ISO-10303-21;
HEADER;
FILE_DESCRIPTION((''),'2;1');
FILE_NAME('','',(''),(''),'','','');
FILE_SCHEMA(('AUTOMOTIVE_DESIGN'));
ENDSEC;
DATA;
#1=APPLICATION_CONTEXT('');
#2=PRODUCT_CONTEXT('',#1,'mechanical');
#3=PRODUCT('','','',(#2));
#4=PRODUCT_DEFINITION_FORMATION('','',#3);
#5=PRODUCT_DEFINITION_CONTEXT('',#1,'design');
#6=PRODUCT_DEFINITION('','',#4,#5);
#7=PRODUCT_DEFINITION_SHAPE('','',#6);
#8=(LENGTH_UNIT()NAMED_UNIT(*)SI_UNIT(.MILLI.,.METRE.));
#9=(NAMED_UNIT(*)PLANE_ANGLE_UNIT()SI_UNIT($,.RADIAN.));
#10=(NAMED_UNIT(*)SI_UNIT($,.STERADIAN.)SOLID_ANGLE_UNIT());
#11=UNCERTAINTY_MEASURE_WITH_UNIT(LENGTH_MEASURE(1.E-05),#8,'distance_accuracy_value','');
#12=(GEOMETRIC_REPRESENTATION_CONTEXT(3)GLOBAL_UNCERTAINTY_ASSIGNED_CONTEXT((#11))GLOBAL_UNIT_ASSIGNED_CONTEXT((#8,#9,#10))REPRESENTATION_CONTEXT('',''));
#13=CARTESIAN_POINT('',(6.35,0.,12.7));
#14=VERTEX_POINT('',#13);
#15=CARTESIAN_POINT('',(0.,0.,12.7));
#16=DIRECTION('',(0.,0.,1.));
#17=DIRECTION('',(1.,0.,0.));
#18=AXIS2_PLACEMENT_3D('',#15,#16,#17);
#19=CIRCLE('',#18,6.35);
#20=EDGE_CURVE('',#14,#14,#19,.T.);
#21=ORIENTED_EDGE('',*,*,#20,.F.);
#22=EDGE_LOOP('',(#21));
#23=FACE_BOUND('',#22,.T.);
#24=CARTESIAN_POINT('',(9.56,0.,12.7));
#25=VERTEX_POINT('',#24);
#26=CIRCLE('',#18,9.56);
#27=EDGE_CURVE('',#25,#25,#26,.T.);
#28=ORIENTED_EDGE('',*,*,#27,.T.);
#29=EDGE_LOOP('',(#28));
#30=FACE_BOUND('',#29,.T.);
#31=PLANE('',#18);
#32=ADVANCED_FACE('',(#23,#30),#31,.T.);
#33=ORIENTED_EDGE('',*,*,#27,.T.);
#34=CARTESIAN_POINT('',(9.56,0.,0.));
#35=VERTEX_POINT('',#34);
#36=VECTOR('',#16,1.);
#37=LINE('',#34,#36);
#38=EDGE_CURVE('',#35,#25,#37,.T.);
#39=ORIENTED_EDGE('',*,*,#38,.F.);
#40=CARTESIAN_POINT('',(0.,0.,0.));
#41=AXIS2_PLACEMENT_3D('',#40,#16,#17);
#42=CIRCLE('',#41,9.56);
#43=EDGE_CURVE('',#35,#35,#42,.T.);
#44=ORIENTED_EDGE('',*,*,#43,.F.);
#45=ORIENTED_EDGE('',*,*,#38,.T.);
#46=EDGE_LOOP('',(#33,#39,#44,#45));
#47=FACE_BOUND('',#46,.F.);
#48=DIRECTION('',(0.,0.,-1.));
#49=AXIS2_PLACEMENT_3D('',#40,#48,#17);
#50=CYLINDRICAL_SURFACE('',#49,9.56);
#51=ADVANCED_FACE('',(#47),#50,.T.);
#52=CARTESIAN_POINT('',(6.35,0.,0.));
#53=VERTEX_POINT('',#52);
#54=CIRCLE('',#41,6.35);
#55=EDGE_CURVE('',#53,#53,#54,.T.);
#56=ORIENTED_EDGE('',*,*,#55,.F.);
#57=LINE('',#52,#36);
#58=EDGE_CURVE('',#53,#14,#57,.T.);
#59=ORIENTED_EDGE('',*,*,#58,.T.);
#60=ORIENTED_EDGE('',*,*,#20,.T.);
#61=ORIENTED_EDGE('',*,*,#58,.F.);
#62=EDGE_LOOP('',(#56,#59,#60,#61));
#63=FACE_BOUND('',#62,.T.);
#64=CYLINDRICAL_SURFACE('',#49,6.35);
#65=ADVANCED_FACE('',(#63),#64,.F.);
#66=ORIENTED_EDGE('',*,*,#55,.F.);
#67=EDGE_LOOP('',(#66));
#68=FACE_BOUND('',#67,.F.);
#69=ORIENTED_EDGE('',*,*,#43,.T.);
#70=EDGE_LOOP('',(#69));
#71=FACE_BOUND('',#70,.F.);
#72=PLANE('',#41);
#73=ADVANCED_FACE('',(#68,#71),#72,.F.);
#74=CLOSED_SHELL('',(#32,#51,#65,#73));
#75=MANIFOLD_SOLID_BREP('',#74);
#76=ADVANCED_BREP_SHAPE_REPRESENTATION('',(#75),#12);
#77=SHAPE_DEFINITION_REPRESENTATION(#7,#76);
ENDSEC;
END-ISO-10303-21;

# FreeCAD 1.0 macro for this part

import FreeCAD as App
import Part
import Sketcher
from FreeCAD import Vector
Q = App.Units.Quantity

doc = App.newDocument("Part")
body = doc.addObject("PartDesign::Body", "Body")

# Sketch on XY plane
sketch1 = body.newObject("Sketcher::SketchObject", "Sketch")
sketch1.AttachmentSupport = (doc.getObject("XY_Plane"), [""])
sketch1.MapMode = "FlatFace"
sketch1.addGeometry(Part.Circle(Vector(0, 0, 0), Vector(0, 0, 1), 10), False)
sketch1.addGeometry(Part.Circle(Vector(0, 0, 0), Vector(0, 0, 1), 6), False)
sketch1.addConstraint(Sketcher.Constraint("Coincident", 0, 3, -1, 1))
sketch1.addConstraint(Sketcher.Constraint("Coincident", 1, 3, -1, 1))
sketch1.addConstraint(Sketcher.Constraint("Diameter", 1, Q("0.5 in")))
sketch1.addConstraint(Sketcher.Constraint("Diameter", 0, 19.12))
pad1 = body.newObject("PartDesign::Pad", "Pad")
pad1.Profile = sketch1
pad1.Length = Q("0.5 in")

doc.recompute()
